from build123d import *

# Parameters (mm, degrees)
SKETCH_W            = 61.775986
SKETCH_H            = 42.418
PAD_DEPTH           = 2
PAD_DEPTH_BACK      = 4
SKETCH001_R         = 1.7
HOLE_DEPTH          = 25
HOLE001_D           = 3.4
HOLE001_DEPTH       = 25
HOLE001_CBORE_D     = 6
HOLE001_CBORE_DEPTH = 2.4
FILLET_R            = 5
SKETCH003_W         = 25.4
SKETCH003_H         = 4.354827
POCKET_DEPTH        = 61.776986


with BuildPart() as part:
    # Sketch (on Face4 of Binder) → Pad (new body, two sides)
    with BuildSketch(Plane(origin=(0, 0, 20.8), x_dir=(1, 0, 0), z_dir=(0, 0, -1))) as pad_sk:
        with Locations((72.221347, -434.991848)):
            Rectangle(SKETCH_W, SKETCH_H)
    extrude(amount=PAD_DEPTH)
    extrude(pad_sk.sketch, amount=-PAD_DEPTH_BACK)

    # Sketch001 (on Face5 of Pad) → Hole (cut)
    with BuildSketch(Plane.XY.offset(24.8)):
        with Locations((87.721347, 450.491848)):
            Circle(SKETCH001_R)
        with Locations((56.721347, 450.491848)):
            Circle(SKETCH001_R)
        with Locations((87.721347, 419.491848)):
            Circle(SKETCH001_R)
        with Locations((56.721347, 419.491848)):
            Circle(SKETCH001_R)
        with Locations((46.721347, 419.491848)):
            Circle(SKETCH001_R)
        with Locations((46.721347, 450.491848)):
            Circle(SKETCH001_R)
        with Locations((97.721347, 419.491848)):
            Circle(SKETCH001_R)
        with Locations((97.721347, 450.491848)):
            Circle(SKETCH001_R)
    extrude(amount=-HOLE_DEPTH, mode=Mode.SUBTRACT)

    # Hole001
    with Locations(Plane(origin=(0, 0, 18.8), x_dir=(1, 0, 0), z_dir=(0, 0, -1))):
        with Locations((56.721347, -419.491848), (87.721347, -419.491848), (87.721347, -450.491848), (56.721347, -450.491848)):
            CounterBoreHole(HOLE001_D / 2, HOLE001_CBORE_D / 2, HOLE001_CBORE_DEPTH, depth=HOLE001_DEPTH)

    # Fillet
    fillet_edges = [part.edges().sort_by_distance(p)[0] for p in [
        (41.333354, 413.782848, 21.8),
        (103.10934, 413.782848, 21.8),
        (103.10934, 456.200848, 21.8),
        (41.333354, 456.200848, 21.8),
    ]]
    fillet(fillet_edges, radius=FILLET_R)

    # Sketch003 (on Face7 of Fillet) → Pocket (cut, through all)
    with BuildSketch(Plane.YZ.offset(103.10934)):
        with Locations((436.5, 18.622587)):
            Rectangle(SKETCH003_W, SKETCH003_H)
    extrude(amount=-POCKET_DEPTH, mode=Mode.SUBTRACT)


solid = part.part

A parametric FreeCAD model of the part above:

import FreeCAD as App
import Part
import Sketcher
Q = App.Units.Quantity


def edges_at(feature, points):
    """Names of the edges that pass closest to the given points."""
    edges = feature.Shape.Edges
    near = lambda p: min(range(len(edges)), key=lambda i: edges[i].distToShape(Part.Vertex(*p))[0])
    return sorted({f"Edge{near(p) + 1}" for p in points})

doc = App.newDocument("Part")
body = doc.addObject("PartDesign::Body", "Body")

sketch1 = body.newObject("Sketcher::SketchObject", "Sketch")
sketch1.AttachmentSupport = (doc.getObject("XY_Plane"), [""])
sketch1.MapMode = "FlatFace"
sketch1.AttachmentOffset = App.Placement(App.Vector(0, 0, 20.8), App.Rotation())
sketch1.addGeometry([
    Part.LineSegment(App.Vector(41, 414, 0), App.Vector(41, 456, 0)),
    Part.LineSegment(App.Vector(41, 456, 0), App.Vector(103, 456, 0)),
    Part.LineSegment(App.Vector(103, 456, 0), App.Vector(103, 414, 0)),
    Part.LineSegment(App.Vector(103, 414, 0), App.Vector(41, 414, 0)),
], False)
sketch1.addConstraint([
    Sketcher.Constraint("Coincident", 0, 2, 1, 1),
    Sketcher.Constraint("Coincident", 1, 2, 2, 1),
    Sketcher.Constraint("Coincident", 2, 2, 3, 1),
    Sketcher.Constraint("Coincident", 3, 2, 0, 1),
    Sketcher.Constraint("Vertical", 0),
    Sketcher.Constraint("Horizontal", 1),
    Sketcher.Constraint("Vertical", 2),
    Sketcher.Constraint("Horizontal", 3),
    Sketcher.Constraint("DistanceY", 0, 1, 0, 2, Q("42.418 mm")),
    Sketcher.Constraint("DistanceX", 1, 1, 1, 2, Q("61.775986 mm")),
    Sketcher.Constraint("DistanceY", -1, 1, 0, 2, Q("456.200848 mm")),
    Sketcher.Constraint("DistanceX", -1, 1, 1, 2, Q("103.10934 mm")),
])
pad1 = body.newObject("PartDesign::Pad", "Pad")
pad1.Profile = sketch1
pad1.Type = "TwoLengths"
pad1.Length = 2
pad1.Length2 = 4
pad1.Reversed = True

sketch2 = body.newObject("Sketcher::SketchObject", "Sketch001")
sketch2.AttachmentSupport = (doc.getObject("XY_Plane"), [""])
sketch2.MapMode = "FlatFace"
sketch2.AttachmentOffset = App.Placement(App.Vector(0, 0, 24.8), App.Rotation())
sketch2.addGeometry([
    Part.Circle(App.Vector(87.7, 450.5, 0), App.Vector(0, 0, 1), 1.7),
    Part.Circle(App.Vector(56.7, 450.5, 0), App.Vector(0, 0, 1), 1.7),
    Part.Circle(App.Vector(87.7, 419.5, 0), App.Vector(0, 0, 1), 1.7),
    Part.Circle(App.Vector(56.7, 419.5, 0), App.Vector(0, 0, 1), 1.7),
    Part.Circle(App.Vector(46.7, 419.5, 0), App.Vector(0, 0, 1), 1.7),
    Part.Circle(App.Vector(46.7, 450.5, 0), App.Vector(0, 0, 1), 1.7),
    Part.Circle(App.Vector(97.7, 419.5, 0), App.Vector(0, 0, 1), 1.7),
    Part.Circle(App.Vector(97.7, 450.5, 0), App.Vector(0, 0, 1), 1.7),
], False)
sketch2.addConstraint([
    Sketcher.Constraint("Equal", 0, 1),
    Sketcher.Constraint("Equal", 1, 2),
    Sketcher.Constraint("Equal", 2, 3),
    Sketcher.Constraint("Equal", 3, 4),
    Sketcher.Constraint("Equal", 4, 5),
    Sketcher.Constraint("Equal", 5, 6),
    Sketcher.Constraint("Equal", 6, 7),
    Sketcher.Constraint("Horizontal", 0, 3, 1, 3),
    Sketcher.Constraint("Horizontal", 2, 3, 3, 3),
    Sketcher.Constraint("Horizontal", 3, 3, 4, 3),
    Sketcher.Constraint("Horizontal", 1, 3, 5, 3),
    Sketcher.Constraint("Horizontal", 4, 3, 6, 3),
    Sketcher.Constraint("Horizontal", 5, 3, 7, 3),
    Sketcher.Constraint("Vertical", 0, 3, 2, 3),
    Sketcher.Constraint("Vertical", 1, 3, 3, 3),
    Sketcher.Constraint("Vertical", 4, 3, 5, 3),
    Sketcher.Constraint("Vertical", 6, 3, 7, 3),
    Sketcher.Constraint("Diameter", 0, Q("3.4 mm")),
    Sketcher.Constraint("DistanceX", 1, 3, 0, 3, Q("31 mm")),
    Sketcher.Constraint("DistanceY", 2, 3, 0, 3, Q("31 mm")),
    Sketcher.Constraint("DistanceX", 4, 3, 3, 3, Q("10 mm")),
    Sketcher.Constraint("DistanceX", 2, 3, 6, 3, Q("10 mm")),
    Sketcher.Constraint("DistanceY", -1, 1, 0, 3, Q("450.491848 mm")),
    Sketcher.Constraint("DistanceX", -1, 1, 0, 3, Q("87.721347 mm")),
])
pocket1 = body.newObject("PartDesign::Pocket", "Pocket")
pocket1.Profile = sketch2
pocket1.Length = 25

sketch3 = body.newObject("Sketcher::SketchObject", "Sketch002")
sketch3.AttachmentSupport = (doc.getObject("XY_Plane"), [""])
sketch3.MapMode = "FlatFace"
sketch3.AttachmentOffset = App.Placement(App.Vector(0, 0, 18.8), App.Rotation())
sketch3.addGeometry([
    Part.Circle(App.Vector(56.7, 419.5, 0), App.Vector(0, 0, 1), 1.7),
    Part.Circle(App.Vector(87.7, 419.5, 0), App.Vector(0, 0, 1), 1.7),
    Part.Circle(App.Vector(87.7, 450.5, 0), App.Vector(0, 0, 1), 1.7),
    Part.Circle(App.Vector(56.7, 450.5, 0), App.Vector(0, 0, 1), 1.7),
], False)
sketch3.addConstraint([
    Sketcher.Constraint("Equal", 0, 1),
    Sketcher.Constraint("Equal", 1, 2),
    Sketcher.Constraint("Equal", 2, 3),
    Sketcher.Constraint("Horizontal", 0, 3, 1, 3),
    Sketcher.Constraint("Horizontal", 2, 3, 3, 3),
    Sketcher.Constraint("Vertical", 1, 3, 2, 3),
    Sketcher.Constraint("Vertical", 0, 3, 3, 3),
    Sketcher.Constraint("Diameter", 0, Q("3.4 mm")),
    Sketcher.Constraint("DistanceX", 0, 3, 1, 3, Q("31 mm")),
    Sketcher.Constraint("DistanceY", 1, 3, 2, 3, Q("31 mm")),
    Sketcher.Constraint("DistanceY", -1, 1, 0, 3, Q("419.491848 mm")),
    Sketcher.Constraint("DistanceX", -1, 1, 0, 3, Q("56.721347 mm")),
])
doc.recompute()
hole = body.newObject("PartDesign::Hole", "Hole")
hole.Profile = sketch3
hole.ThreadType = "None"
hole.Diameter = 3.4
hole.DepthType = "Dimension"
hole.Depth = 25
hole.DrillPoint = "Flat"
hole.HoleCutType = "Counterbore"
hole.HoleCutDiameter = 6
hole.HoleCutDepth = 2.4
hole.Reversed = True
doc.recompute()

fillet = body.newObject("PartDesign::Fillet", "Fillet")
fillet.Base = (hole, edges_at(hole, [
    (41.333, 413.783, 21.8),
    (103.109, 413.783, 21.8),
    (103.109, 456.201, 21.8),
    (41.333, 456.201, 21.8),
]))
fillet.Radius = 5

sketch4 = body.newObject("Sketcher::SketchObject", "Sketch003")
sketch4.AttachmentSupport = (doc.getObject("YZ_Plane"), [""])
sketch4.MapMode = "FlatFace"
sketch4.AttachmentOffset = App.Placement(App.Vector(0, 0, 103.10934), App.Rotation())
sketch4.addGeometry([
    Part.LineSegment(App.Vector(423.8, 20.8, 0), App.Vector(423.8, 16.4, 0)),
    Part.LineSegment(App.Vector(423.8, 16.4, 0), App.Vector(449.2, 16.4, 0)),
    Part.LineSegment(App.Vector(449.2, 16.4, 0), App.Vector(449.2, 20.8, 0)),
    Part.LineSegment(App.Vector(449.2, 20.8, 0), App.Vector(423.8, 20.8, 0)),
], False)
sketch4.addConstraint([
    Sketcher.Constraint("Coincident", 0, 2, 1, 1),
    Sketcher.Constraint("Coincident", 1, 2, 2, 1),
    Sketcher.Constraint("Coincident", 2, 2, 3, 1),
    Sketcher.Constraint("Coincident", 3, 2, 0, 1),
    Sketcher.Constraint("Vertical", 0),
    Sketcher.Constraint("Horizontal", 1),
    Sketcher.Constraint("Vertical", 2),
    Sketcher.Constraint("Horizontal", 3),
    Sketcher.Constraint("DistanceX", 1, 1, 1, 2, Q("25.4 mm")),
    Sketcher.Constraint("DistanceX", -1, 1, 0, 2, Q("423.8 mm")),
    Sketcher.Constraint("DistanceY", -1, 1, 2, 2, Q("20.8 mm")),
    Sketcher.Constraint("DistanceY", 0, 2, 0, 1, Q("4.354827 mm")),
])
pocket2 = body.newObject("PartDesign::Pocket", "Pocket001")
pocket2.Profile = sketch4
pocket2.Type = "ThroughAll"

doc.recompute()
